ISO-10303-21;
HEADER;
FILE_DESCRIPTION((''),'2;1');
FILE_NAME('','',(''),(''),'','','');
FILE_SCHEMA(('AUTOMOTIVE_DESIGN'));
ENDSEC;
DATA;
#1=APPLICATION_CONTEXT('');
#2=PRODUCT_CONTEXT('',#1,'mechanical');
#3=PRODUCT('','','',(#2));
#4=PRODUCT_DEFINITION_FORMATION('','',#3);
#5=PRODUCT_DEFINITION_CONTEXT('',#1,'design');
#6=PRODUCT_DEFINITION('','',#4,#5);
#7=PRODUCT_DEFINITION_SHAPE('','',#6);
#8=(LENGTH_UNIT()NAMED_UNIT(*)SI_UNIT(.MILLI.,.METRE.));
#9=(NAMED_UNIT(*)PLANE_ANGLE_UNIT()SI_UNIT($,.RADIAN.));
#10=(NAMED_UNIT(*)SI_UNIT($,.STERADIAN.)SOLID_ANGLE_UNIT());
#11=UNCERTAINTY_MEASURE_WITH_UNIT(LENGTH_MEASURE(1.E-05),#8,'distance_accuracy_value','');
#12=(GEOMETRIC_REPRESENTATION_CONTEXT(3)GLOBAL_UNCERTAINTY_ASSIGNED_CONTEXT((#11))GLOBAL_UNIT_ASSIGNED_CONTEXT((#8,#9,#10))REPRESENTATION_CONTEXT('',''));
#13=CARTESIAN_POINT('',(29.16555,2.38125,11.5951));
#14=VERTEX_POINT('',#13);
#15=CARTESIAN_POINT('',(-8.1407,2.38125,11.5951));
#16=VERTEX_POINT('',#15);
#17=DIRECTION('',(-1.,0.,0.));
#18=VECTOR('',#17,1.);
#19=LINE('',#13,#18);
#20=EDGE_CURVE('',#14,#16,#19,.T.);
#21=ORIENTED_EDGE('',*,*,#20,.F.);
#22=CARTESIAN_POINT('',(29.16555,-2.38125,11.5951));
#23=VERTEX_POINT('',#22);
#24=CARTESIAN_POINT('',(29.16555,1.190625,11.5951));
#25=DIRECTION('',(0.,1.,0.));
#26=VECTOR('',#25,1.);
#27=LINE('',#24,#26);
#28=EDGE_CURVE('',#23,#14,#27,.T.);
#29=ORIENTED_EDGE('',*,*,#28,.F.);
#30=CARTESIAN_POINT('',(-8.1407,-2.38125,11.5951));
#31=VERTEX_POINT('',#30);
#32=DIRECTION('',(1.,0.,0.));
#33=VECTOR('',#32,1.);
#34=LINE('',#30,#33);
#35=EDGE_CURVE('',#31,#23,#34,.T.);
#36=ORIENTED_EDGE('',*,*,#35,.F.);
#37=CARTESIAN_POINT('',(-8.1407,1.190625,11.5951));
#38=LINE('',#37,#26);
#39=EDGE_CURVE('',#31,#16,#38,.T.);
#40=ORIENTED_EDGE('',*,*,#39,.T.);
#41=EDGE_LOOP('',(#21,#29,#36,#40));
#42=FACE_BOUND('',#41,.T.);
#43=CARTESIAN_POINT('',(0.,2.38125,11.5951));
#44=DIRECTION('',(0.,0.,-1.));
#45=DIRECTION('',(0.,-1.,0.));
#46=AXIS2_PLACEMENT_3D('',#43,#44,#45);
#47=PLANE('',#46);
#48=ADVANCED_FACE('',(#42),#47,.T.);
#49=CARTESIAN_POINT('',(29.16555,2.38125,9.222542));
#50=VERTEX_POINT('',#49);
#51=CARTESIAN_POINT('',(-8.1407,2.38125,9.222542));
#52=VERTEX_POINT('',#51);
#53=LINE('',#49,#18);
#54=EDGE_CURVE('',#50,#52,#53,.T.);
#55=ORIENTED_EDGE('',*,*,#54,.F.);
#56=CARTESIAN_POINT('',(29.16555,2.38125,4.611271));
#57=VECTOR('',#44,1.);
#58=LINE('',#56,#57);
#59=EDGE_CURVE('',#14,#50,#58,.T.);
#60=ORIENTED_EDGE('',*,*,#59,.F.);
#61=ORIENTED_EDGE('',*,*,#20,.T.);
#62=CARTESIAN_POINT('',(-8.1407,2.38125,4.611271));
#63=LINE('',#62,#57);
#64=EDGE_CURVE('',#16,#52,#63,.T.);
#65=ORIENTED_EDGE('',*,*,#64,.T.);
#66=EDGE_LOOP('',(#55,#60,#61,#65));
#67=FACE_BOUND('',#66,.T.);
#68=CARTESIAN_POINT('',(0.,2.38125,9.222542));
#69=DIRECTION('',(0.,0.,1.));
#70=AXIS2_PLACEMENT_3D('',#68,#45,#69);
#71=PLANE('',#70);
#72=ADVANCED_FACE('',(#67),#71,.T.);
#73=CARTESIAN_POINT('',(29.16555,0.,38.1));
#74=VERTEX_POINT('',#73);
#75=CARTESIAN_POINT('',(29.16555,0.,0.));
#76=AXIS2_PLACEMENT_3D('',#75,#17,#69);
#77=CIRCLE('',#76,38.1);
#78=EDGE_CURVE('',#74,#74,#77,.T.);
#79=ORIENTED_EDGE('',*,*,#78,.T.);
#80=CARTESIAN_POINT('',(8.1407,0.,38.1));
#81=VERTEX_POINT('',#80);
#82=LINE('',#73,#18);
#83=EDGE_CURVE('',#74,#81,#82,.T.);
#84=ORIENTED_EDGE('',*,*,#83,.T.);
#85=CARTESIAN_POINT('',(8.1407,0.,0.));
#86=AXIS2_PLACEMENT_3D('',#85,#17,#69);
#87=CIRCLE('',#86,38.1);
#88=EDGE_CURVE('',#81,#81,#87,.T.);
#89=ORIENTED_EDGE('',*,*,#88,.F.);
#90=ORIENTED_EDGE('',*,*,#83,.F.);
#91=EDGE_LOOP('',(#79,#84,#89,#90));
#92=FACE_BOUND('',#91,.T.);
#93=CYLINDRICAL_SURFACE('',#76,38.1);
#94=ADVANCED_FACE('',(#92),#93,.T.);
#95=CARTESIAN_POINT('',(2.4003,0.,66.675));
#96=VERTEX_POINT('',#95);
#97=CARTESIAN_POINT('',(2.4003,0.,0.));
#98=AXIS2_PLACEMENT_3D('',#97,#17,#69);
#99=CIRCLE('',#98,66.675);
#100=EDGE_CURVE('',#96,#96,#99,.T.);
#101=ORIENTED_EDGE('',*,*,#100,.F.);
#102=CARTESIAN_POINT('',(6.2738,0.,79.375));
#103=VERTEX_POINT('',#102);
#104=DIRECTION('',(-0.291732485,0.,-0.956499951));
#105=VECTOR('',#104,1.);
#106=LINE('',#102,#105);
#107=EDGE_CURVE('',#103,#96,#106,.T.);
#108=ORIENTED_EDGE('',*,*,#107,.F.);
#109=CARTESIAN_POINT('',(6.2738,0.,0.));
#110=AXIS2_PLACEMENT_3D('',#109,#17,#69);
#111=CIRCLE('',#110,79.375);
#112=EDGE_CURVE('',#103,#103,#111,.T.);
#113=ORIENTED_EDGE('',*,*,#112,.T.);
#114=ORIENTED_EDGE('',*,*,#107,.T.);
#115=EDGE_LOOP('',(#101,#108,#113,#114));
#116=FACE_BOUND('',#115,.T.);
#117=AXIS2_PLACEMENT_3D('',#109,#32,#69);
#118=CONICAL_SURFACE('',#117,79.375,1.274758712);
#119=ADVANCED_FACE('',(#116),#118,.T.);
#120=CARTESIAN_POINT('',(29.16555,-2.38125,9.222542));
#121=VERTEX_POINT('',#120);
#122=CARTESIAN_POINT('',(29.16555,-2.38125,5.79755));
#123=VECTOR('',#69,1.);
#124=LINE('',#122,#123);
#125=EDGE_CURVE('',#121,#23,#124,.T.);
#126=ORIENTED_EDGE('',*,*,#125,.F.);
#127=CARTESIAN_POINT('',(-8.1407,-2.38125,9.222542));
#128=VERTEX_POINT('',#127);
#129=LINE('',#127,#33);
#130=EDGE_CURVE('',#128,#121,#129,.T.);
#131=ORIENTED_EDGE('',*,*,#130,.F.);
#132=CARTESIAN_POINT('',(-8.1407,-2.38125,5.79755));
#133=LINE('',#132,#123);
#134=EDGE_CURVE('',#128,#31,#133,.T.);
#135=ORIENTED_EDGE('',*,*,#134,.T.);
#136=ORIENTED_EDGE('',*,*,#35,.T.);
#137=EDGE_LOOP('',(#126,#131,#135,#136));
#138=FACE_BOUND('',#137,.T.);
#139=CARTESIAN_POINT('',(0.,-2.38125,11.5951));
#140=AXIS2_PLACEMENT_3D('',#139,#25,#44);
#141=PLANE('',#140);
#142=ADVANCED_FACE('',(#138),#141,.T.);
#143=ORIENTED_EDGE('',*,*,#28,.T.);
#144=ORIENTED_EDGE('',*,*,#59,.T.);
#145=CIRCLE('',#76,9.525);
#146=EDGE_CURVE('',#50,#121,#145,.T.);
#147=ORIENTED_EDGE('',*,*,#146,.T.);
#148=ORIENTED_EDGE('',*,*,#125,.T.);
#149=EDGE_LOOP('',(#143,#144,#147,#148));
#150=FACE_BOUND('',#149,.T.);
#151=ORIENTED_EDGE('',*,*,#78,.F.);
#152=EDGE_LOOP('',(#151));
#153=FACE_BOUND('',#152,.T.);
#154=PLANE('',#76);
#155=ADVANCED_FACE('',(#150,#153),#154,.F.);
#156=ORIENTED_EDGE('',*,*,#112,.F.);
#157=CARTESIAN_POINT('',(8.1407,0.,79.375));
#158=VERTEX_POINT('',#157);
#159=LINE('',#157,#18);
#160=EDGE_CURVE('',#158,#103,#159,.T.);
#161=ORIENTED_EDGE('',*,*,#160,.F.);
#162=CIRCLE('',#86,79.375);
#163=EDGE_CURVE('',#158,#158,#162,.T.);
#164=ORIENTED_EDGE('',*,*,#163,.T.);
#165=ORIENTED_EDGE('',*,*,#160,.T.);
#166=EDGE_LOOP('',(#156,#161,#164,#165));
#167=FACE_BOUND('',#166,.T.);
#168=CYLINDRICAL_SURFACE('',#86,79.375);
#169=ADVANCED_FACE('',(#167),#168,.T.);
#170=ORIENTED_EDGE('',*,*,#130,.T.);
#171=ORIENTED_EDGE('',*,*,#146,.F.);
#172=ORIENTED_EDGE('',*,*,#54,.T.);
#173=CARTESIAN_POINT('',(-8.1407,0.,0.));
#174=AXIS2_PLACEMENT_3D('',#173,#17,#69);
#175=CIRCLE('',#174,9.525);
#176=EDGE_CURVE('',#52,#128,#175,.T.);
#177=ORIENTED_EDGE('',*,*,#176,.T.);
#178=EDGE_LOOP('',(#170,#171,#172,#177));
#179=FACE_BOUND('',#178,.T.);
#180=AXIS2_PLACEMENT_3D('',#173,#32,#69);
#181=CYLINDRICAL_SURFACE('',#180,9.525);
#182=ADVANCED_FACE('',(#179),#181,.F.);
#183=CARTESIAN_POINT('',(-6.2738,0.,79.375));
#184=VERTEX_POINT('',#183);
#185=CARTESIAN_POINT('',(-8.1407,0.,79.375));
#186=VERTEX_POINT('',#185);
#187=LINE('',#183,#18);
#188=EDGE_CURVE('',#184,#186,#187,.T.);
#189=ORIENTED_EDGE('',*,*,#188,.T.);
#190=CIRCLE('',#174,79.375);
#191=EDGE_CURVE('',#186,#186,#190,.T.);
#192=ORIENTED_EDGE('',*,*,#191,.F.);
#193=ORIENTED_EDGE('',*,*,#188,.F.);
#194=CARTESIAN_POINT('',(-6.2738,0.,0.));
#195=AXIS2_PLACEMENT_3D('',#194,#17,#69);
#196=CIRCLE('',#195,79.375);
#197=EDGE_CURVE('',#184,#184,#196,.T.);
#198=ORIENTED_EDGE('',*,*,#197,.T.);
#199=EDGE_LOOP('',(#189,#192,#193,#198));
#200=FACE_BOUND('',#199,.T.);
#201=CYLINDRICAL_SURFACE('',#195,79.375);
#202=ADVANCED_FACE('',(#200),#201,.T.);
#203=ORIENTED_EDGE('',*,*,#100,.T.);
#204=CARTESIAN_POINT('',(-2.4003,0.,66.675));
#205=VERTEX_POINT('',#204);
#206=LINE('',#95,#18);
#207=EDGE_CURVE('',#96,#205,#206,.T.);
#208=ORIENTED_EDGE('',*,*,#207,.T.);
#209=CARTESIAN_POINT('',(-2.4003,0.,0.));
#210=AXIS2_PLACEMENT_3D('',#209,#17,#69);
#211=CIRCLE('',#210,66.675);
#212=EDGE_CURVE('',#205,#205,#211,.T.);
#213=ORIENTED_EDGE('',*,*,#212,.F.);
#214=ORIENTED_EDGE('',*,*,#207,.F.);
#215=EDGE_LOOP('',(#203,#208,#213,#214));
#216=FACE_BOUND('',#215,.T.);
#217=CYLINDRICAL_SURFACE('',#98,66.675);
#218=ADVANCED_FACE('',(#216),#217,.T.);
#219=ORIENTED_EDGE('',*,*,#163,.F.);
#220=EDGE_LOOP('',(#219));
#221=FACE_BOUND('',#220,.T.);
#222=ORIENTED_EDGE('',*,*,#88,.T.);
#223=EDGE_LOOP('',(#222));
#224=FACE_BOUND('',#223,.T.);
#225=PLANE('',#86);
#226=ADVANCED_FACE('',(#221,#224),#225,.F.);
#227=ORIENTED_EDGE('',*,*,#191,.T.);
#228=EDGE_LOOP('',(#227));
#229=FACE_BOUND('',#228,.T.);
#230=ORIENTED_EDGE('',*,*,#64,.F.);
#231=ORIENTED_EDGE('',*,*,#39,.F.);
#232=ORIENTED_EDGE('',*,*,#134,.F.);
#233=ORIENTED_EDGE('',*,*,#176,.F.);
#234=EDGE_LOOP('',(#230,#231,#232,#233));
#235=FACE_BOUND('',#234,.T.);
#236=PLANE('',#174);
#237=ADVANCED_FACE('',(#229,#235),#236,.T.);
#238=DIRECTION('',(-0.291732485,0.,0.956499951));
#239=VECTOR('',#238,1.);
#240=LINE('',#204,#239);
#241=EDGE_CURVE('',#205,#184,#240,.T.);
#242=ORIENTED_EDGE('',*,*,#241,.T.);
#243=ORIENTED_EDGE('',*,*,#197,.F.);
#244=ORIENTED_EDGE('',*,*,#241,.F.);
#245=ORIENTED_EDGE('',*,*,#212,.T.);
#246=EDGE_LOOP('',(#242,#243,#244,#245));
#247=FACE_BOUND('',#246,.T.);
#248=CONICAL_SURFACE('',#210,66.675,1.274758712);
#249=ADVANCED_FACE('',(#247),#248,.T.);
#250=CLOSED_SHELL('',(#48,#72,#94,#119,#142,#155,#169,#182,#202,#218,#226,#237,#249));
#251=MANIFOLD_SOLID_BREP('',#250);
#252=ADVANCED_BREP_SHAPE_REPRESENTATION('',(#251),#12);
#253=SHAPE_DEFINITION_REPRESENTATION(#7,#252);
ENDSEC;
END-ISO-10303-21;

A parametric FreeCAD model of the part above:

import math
import FreeCAD as App
import Part
import Sketcher

V = App.Vector
Q = App.Units.Quantity

doc = App.newDocument("Part")
body = doc.addObject("PartDesign::Body", "Body")

# Sketch on XZ plane
sketch1 = body.newObject("Sketcher::SketchObject", "Sketch")
sketch1.AttachmentSupport = (doc.getObject("XZ_Plane"), [""])
sketch1.MapMode = "FlatFace"
sketch1.addGeometry([
    Part.LineSegment(V(-8.1407, 9.525, 0), V(29.16555, 9.525, 0)),  # 0
    Part.LineSegment(V(29.16555, 9.525, 0), V(29.16555, 38.1, 0)),  # 1
    Part.LineSegment(V(29.16555, 38.1, 0), V(8.1407, 38.1, 0)),  # 2
    Part.LineSegment(V(8.1407, 38.1, 0), V(8.1407, 79.375, 0)),  # 3
    Part.LineSegment(V(8.1407, 79.375, 0), V(6.2738, 79.375, 0)),  # 4
    Part.LineSegment(V(6.2738, 79.375, 0), V(2.4003, 66.675, 0)),  # 5
    Part.LineSegment(V(2.4003, 66.675, 0), V(-2.4003, 66.675, 0)),  # 6
    Part.LineSegment(V(-2.4003, 66.675, 0), V(-6.2738, 79.375, 0)),  # 7
    Part.LineSegment(V(-6.2738, 79.375, 0), V(-8.1407, 79.375, 0)),  # 8
    Part.LineSegment(V(-8.1407, 79.375, 0), V(-8.1407, 9.525, 0)),  # 9
], False)
sketch1.addConstraint([
    Sketcher.Constraint("Coincident", 0, 2, 1, 1),
    Sketcher.Constraint("Coincident", 1, 2, 2, 1),
    Sketcher.Constraint("Coincident", 2, 2, 3, 1),
    Sketcher.Constraint("Coincident", 3, 2, 4, 1),
    Sketcher.Constraint("Coincident", 4, 2, 5, 1),
    Sketcher.Constraint("Coincident", 5, 2, 6, 1),
    Sketcher.Constraint("Coincident", 6, 2, 7, 1),
    Sketcher.Constraint("Coincident", 7, 2, 8, 1),
    Sketcher.Constraint("Coincident", 8, 2, 9, 1),
    Sketcher.Constraint("Coincident", 9, 2, 0, 1),
    Sketcher.Constraint("Horizontal", 0),
    Sketcher.Constraint("Vertical", 1),
    Sketcher.Constraint("Horizontal", 2),
    Sketcher.Constraint("Vertical", 3),
    Sketcher.Constraint("Horizontal", 4),
    Sketcher.Constraint("Horizontal", 6),
    Sketcher.Constraint("Horizontal", 8),
    Sketcher.Constraint("Vertical", 9),
    Sketcher.Constraint("Symmetric", 4, 2, 7, 2, -2),
    Sketcher.Constraint("Equal", 4, 8),
    Sketcher.Constraint("Equal", 5, 7),
    Sketcher.Constraint("DistanceY", 9, 2, 9, 1, Q("2.75 in")),
    Sketcher.Constraint("DistanceY", -1, 1, 1, 2, Q("1.5 in")),
    Sketcher.Constraint("DistanceY", 5, 2, 4, 2, Q("0.5 in")),
    Sketcher.Constraint("DistanceX", 0, 1, 0, 2, Q("1.46875 in")),
    Sketcher.Constraint("DistanceX", 6, 2, 6, 1, Q("0.189 in")),
    Sketcher.Constraint("DistanceY", 1, 1, 1, 2, Q("1.125 in")),
    Sketcher.Constraint("DistanceX", 4, 2, 4, 1, Q("0.0735 in")),
    Sketcher.Constraint("DistanceX", -1, 1, 4, 2, Q("0.247 in")),
])
revolution = body.newObject("PartDesign::Revolution", "Revolution")
revolution.Profile = sketch1
revolution.ReferenceAxis = (sketch1, ["H_Axis"])
revolution.Angle = 360

# Sketch on YZ plane
sketch2 = body.newObject("Sketcher::SketchObject", "Sketch001")
sketch2.AttachmentSupport = (doc.getObject("YZ_Plane"), [""])
sketch2.MapMode = "FlatFace"
sketch2.addGeometry([
    Part.LineSegment(V(2.38125, 11.5951, 0), V(-2.38125, 11.5951, 0)),
    Part.LineSegment(V(-2.38125, 11.5951, 0), V(-2.38125, 9.222542, 0)),
    Part.ArcOfCircle(Part.Circle(V(0, 0, 0), V(0, 0, 1), 9.525), math.radians(104.477512), math.radians(435.522488)),
    Part.LineSegment(V(2.38125, 9.222542, 0), V(2.38125, 11.5951, 0)),
], False)
sketch2.addConstraint([
    Sketcher.Constraint("Coincident", 0, 2, 1, 1),
    Sketcher.Constraint("Coincident", 1, 2, 2, 1),
    Sketcher.Constraint("Coincident", 2, 2, 3, 1),
    Sketcher.Constraint("Coincident", 3, 2, 0, 1),
    Sketcher.Constraint("Horizontal", 0),
    Sketcher.Constraint("Vertical", 1),
    Sketcher.Constraint("Vertical", 3),
    Sketcher.Constraint("Coincident", 2, 3, -1, 1),
    Sketcher.Constraint("Horizontal", 1, 2, 2, 2),
    Sketcher.Constraint("Radius", 2, Q("0.375 in")),
    Sketcher.Constraint("DistanceX", 0, 2, 0, 1, Q("0.1875 in")),
    Sketcher.Constraint("DistanceY", -1, 1, 0, 2, Q("0.4565 in")),
])
pocket1 = body.newObject("PartDesign::Pocket", "Pocket")
pocket1.Profile = sketch2
pocket1.Type = "ThroughAll"
pocket1.Midplane = True

doc.recompute()
